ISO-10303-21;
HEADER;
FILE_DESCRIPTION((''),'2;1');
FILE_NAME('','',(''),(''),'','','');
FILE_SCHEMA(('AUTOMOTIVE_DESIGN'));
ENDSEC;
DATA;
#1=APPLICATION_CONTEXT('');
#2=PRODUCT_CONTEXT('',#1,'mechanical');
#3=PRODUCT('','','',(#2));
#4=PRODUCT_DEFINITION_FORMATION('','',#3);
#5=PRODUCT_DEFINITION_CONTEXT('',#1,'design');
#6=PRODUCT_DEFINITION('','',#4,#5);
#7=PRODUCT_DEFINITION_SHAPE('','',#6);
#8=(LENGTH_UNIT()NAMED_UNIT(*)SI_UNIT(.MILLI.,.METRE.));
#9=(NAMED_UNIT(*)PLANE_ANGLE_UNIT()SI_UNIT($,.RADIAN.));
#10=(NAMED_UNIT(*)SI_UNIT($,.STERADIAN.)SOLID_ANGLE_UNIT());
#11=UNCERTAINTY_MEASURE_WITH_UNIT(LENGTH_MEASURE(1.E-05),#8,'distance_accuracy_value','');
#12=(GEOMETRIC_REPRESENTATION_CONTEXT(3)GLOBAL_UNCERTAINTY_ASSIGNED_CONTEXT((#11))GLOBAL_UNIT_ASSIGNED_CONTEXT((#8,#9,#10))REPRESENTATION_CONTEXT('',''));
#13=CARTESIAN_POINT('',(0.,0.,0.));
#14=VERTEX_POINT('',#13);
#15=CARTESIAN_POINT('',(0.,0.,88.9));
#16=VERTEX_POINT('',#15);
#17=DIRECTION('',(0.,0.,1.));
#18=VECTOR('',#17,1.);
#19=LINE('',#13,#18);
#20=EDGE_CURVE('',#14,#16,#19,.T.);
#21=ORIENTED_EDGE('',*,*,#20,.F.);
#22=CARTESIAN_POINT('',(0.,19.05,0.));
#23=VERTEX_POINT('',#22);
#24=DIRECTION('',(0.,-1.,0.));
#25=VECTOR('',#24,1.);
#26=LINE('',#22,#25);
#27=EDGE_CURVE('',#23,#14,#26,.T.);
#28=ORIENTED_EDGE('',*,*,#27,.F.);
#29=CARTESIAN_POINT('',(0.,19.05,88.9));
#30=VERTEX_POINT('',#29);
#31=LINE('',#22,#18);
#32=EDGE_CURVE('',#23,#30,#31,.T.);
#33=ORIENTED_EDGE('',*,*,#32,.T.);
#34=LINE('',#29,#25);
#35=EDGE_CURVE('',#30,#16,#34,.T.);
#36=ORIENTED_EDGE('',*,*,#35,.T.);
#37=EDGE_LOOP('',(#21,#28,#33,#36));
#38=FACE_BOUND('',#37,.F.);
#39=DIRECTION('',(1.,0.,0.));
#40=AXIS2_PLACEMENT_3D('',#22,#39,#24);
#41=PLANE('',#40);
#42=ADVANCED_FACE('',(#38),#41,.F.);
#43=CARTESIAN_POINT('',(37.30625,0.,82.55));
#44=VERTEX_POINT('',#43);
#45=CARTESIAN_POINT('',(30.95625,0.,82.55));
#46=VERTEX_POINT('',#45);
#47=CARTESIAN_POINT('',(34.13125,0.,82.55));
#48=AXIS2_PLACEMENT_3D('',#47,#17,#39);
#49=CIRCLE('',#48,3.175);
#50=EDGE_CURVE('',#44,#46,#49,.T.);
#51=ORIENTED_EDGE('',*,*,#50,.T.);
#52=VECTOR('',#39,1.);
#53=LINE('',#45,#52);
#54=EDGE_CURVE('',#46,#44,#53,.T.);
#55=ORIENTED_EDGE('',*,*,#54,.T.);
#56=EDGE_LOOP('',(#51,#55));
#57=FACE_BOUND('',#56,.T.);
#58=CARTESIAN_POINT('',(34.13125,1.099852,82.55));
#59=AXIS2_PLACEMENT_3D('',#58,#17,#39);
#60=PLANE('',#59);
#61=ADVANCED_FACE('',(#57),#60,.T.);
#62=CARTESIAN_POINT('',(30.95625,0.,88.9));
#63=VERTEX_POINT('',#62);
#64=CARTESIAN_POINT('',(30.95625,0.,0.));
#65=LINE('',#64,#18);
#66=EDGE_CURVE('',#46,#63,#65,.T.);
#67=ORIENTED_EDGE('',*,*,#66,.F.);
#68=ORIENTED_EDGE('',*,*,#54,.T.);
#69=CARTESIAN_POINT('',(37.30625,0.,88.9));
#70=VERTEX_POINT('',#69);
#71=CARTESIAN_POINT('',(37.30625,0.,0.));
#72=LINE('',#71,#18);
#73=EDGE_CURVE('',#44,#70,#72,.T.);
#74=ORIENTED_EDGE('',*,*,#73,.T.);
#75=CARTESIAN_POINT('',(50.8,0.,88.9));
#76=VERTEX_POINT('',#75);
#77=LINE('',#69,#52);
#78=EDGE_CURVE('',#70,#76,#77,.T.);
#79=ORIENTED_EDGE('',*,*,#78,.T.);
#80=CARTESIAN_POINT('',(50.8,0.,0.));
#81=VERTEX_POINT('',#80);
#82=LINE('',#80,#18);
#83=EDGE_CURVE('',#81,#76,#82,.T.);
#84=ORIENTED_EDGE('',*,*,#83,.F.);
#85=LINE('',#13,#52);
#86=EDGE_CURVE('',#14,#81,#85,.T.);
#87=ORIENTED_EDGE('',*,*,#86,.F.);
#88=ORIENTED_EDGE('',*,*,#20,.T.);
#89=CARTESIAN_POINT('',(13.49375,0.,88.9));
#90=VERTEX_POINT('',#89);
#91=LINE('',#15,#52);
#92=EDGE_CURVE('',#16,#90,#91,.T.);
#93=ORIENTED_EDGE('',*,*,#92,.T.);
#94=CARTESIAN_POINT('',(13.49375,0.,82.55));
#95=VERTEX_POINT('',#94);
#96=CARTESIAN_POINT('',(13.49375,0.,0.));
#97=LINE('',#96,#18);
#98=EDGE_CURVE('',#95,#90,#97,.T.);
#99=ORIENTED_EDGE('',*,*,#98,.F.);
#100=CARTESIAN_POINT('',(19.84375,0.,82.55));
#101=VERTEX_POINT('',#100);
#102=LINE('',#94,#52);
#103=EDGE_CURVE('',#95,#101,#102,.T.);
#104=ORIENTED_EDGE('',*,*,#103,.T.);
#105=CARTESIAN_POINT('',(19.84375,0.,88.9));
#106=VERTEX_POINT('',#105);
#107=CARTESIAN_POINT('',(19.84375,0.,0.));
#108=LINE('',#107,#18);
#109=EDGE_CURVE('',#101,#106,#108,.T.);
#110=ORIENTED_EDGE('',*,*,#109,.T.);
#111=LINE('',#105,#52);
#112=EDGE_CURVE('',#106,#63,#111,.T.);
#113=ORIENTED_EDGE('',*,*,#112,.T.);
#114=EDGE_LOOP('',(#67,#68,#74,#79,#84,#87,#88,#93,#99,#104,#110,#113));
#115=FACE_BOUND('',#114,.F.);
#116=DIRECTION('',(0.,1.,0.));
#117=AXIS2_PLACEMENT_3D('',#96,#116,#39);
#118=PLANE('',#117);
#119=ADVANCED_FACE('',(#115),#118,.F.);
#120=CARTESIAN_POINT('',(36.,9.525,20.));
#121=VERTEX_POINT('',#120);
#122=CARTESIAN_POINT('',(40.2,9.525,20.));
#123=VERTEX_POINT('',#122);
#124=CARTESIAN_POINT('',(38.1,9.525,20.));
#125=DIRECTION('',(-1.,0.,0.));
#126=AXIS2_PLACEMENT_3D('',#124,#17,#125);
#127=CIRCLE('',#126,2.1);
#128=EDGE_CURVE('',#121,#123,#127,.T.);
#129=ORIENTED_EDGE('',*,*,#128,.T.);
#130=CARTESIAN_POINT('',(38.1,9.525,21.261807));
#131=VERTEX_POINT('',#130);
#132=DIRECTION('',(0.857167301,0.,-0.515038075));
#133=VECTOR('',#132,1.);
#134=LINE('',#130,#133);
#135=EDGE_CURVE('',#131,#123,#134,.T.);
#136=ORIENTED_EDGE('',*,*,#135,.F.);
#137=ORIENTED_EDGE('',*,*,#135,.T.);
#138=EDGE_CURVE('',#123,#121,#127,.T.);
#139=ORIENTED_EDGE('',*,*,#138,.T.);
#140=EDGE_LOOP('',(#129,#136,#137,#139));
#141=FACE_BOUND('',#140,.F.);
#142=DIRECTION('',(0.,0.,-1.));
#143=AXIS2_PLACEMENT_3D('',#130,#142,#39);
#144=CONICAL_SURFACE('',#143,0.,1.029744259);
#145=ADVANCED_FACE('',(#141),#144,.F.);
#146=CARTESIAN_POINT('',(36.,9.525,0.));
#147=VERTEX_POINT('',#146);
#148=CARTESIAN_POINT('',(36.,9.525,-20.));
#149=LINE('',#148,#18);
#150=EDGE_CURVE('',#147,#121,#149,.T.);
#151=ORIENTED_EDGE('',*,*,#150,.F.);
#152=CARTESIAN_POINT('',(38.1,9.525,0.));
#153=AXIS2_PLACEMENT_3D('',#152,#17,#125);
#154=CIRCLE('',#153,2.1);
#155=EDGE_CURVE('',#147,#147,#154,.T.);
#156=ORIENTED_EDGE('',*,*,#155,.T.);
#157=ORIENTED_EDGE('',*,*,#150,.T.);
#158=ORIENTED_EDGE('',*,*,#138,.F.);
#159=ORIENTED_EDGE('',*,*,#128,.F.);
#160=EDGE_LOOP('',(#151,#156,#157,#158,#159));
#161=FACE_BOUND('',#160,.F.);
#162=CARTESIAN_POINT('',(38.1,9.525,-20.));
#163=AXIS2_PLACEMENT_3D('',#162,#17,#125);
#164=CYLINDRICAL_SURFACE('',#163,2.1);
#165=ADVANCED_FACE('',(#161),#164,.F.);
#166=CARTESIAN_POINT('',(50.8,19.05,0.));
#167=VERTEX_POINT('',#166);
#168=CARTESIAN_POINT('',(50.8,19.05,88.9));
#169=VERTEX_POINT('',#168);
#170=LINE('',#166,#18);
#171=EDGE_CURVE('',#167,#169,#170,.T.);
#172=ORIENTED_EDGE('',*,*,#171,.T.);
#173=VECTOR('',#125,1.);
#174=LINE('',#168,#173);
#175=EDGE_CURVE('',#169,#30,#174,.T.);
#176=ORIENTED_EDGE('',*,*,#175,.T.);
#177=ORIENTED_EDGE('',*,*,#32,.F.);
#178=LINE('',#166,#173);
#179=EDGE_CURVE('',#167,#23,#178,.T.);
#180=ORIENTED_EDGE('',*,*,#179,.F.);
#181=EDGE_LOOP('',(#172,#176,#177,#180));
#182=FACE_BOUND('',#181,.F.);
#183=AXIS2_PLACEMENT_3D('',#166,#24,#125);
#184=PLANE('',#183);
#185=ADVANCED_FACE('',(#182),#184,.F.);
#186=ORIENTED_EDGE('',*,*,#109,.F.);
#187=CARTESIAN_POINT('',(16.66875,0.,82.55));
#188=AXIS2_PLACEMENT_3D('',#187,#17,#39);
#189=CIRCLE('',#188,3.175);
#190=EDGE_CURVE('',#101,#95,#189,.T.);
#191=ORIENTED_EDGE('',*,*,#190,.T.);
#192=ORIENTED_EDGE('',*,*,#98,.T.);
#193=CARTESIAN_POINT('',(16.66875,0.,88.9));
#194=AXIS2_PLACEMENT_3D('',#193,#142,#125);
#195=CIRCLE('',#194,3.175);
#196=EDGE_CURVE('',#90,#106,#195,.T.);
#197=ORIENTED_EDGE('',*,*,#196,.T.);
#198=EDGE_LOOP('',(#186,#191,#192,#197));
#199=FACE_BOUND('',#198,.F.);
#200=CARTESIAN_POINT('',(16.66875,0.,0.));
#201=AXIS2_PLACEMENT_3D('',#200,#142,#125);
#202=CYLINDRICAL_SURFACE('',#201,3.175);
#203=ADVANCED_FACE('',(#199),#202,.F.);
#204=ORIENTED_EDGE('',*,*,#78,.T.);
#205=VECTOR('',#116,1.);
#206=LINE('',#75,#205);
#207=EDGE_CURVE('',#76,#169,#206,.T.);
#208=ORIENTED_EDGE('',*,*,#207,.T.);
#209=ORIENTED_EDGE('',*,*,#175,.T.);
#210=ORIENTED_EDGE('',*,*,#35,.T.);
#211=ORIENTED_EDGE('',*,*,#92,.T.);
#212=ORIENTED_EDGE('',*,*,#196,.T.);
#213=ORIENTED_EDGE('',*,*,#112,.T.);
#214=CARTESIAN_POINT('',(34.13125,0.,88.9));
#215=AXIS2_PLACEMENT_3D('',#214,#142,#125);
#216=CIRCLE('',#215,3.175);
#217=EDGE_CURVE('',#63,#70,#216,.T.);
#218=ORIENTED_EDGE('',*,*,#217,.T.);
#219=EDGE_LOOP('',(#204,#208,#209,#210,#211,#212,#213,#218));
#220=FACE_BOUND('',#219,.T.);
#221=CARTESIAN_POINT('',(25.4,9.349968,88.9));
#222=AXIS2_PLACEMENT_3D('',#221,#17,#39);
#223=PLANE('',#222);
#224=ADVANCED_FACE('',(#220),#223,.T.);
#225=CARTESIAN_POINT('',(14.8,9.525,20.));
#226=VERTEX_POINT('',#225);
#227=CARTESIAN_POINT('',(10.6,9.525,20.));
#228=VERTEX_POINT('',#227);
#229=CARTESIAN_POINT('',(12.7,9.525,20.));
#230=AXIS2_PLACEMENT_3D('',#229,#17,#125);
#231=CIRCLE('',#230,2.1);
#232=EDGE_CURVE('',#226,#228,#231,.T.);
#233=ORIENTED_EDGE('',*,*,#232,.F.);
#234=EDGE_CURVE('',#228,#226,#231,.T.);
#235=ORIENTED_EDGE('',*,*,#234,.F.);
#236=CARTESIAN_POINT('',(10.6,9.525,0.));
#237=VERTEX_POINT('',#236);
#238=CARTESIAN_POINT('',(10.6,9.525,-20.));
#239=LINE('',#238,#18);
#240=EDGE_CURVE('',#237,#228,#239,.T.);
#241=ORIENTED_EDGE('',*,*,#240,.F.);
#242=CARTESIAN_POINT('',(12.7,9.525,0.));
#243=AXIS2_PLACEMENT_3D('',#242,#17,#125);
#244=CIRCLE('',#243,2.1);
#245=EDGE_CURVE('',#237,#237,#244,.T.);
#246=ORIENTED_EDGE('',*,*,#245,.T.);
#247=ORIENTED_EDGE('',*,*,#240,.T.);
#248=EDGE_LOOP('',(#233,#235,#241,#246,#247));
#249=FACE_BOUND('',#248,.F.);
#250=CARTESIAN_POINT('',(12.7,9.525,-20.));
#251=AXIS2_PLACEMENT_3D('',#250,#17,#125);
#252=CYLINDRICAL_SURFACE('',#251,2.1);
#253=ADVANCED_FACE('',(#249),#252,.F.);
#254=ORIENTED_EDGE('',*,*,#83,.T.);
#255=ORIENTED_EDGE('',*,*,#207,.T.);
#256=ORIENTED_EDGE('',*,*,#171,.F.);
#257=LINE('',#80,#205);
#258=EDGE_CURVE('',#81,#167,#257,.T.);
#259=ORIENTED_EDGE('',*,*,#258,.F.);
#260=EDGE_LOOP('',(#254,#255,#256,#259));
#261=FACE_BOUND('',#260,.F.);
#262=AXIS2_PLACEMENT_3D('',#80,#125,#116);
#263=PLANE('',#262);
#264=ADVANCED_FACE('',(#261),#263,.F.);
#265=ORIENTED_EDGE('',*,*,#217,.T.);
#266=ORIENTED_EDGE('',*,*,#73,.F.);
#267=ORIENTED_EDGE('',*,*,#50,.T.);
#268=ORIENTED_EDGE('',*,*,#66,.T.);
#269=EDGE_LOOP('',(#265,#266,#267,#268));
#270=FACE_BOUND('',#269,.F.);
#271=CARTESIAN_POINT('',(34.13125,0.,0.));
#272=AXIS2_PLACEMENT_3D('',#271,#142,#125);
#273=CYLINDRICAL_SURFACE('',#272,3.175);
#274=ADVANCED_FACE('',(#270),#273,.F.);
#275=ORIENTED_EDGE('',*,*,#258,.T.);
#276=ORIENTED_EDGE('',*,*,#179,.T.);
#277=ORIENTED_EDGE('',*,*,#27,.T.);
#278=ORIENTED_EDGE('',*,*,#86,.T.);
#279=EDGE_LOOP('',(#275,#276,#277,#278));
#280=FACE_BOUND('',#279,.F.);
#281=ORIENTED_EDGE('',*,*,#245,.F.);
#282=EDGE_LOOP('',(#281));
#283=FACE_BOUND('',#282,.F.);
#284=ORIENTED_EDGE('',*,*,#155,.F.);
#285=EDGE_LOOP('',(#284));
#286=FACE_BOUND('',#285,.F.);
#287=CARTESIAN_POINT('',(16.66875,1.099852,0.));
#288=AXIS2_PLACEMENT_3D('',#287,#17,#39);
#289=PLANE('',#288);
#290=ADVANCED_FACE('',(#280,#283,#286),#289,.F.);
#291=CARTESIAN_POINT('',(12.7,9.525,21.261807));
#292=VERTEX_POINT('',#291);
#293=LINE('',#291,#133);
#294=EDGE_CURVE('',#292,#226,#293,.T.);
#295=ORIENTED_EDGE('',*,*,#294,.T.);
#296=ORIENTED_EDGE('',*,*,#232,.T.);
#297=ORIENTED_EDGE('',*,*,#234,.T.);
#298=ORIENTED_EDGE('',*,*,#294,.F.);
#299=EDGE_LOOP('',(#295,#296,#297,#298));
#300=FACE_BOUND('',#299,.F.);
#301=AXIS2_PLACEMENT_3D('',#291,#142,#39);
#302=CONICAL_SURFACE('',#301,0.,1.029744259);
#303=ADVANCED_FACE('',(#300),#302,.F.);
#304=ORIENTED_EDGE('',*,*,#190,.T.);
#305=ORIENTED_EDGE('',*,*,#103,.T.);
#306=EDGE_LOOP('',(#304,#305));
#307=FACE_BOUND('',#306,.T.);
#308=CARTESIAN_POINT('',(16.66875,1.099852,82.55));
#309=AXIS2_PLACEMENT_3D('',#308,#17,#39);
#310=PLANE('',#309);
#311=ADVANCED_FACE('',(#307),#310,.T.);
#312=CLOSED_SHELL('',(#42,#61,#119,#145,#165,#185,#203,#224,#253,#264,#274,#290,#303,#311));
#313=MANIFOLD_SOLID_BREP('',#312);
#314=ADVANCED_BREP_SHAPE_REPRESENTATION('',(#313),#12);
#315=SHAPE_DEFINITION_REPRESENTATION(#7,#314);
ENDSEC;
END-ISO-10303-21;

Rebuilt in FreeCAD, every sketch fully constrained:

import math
import FreeCAD as App
import Part
import Sketcher
from FreeCAD import Vector
Q = App.Units.Quantity

doc = App.newDocument("Part")
params = doc.addObject("Spreadsheet::Sheet", "Params")
for row, (alias, value) in enumerate([
    ("sketch1_width", "2 in"),
    ("sketch1_radius", "0.125 in"),
    ("sketch1_height", "0.75 in"),
    ("sketch1_width2", "0.4375 in"),
    ("pad1_length", "3.5 in"),
    ("sketch2_radius", "0.125 in"),
    ("pad2_length", "3.25 in"),
    ("hole_diameter", "4.2 mm"),
    ("hole_depth", "20 mm"),
], start=1):
    params.set(f"A{row}", alias)
    params.set(f"B{row}", "=" + value)
    params.setAlias(f"B{row}", alias)

body = doc.addObject("PartDesign::Body", "Body")

sketch1 = doc.addObject("Sketcher::SketchObject", "Sketch")
body.addObject(sketch1)
sketch1.AttachmentSupport = (doc.XY_Plane, [""])
sketch1.MapMode = "FlatFace"
sketch1.addGeometry(Part.LineSegment(Vector(19.84375, 0, 0), Vector(30.95625, 0, 0)), False)
sketch1.addGeometry(Part.ArcOfCircle(Part.Circle(Vector(34.13125, 0, 0), Vector(0, 0, 1), 3.175), math.radians(0), math.radians(180)), False)
sketch1.addGeometry(Part.LineSegment(Vector(37.30625, 0, 0), Vector(50.8, 0, 0)), False)
sketch1.addGeometry(Part.LineSegment(Vector(50.8, 0, 0), Vector(50.8, 19.05, 0)), False)
sketch1.addGeometry(Part.LineSegment(Vector(50.8, 19.05, 0), Vector(0, 19.05, 0)), False)
sketch1.addGeometry(Part.LineSegment(Vector(0, 19.05, 0), Vector(0, 0, 0)), False)
sketch1.addGeometry(Part.LineSegment(Vector(0, 0, 0), Vector(13.49375, 0, 0)), False)
sketch1.addGeometry(Part.ArcOfCircle(Part.Circle(Vector(16.66875, 0, 0), Vector(0, 0, 1), 3.175), math.radians(0), math.radians(180)), False)
sketch1.addConstraint(Sketcher.Constraint("Coincident", 0, 2, 1, 2))
sketch1.addConstraint(Sketcher.Constraint("Coincident", 1, 1, 2, 1))
sketch1.addConstraint(Sketcher.Constraint("Coincident", 2, 2, 3, 1))
sketch1.addConstraint(Sketcher.Constraint("Coincident", 3, 2, 4, 1))
sketch1.addConstraint(Sketcher.Constraint("Coincident", 4, 2, 5, 1))
sketch1.addConstraint(Sketcher.Constraint("Coincident", 5, 2, 6, 1))
sketch1.addConstraint(Sketcher.Constraint("Coincident", 6, 2, 7, 2))
sketch1.addConstraint(Sketcher.Constraint("Coincident", 7, 1, 0, 1))
sketch1.addConstraint(Sketcher.Constraint("Horizontal", 0))
sketch1.addConstraint(Sketcher.Constraint("Horizontal", 2))
sketch1.addConstraint(Sketcher.Constraint("Vertical", 3))
sketch1.addConstraint(Sketcher.Constraint("Horizontal", 4))
sketch1.addConstraint(Sketcher.Constraint("Vertical", 5))
sketch1.addConstraint(Sketcher.Constraint("Horizontal", 6))
sketch1.addConstraint(Sketcher.Constraint("Coincident", 5, 2, -1, 1))
sketch1.addConstraint(Sketcher.Constraint("Equal", 1, 7))
sketch1.addConstraint(Sketcher.Constraint("PointOnObject", 1, 3, -1))
sketch1.addConstraint(Sketcher.Constraint("PointOnObject", 7, 3, -1))
sketch1.addConstraint(Sketcher.Constraint("PointOnObject", 0, 2, -1))
sketch1.addConstraint(Sketcher.Constraint("PointOnObject", 1, 1, -1))
sketch1.addConstraint(Sketcher.Constraint("Equal", 2, 6))
sketch1.addConstraint(Sketcher.Constraint("DistanceX", 4, 2, 4, 1, Q("2 in")))
sketch1.addConstraint(Sketcher.Constraint("Radius", 1, Q("0.125 in")))
sketch1.addConstraint(Sketcher.Constraint("DistanceY", 3, 1, 3, 2, Q("0.75 in")))
sketch1.addConstraint(Sketcher.Constraint("DistanceX", 0, 1, 0, 2, Q("0.4375 in")))
sketch1.setExpression("Constraints[21]", "Params.sketch1_width")
sketch1.setExpression("Constraints[22]", "Params.sketch1_radius")
sketch1.setExpression("Constraints[23]", "Params.sketch1_height")
sketch1.setExpression("Constraints[24]", "Params.sketch1_width2")
pad1 = doc.addObject("PartDesign::Pad", "Pad")
body.addObject(pad1)
pad1.Profile = sketch1
pad1.setExpression("Length", "Params.pad1_length")

sketch2 = doc.addObject("Sketcher::SketchObject", "Sketch001")
body.addObject(sketch2)
sketch2.AttachmentSupport = (doc.XY_Plane, [""])
sketch2.MapMode = "FlatFace"
sketch2.addGeometry(Part.ArcOfCircle(Part.Circle(Vector(16.66875, 0, 0), Vector(0, 0, 1), 3.175), math.radians(0), math.radians(180)), False)
sketch2.addGeometry(Part.LineSegment(Vector(13.49375, 0, 0), Vector(19.84375, 0, 0)), False)
sketch2.addGeometry(Part.ArcOfCircle(Part.Circle(Vector(34.13125, 0, 0), Vector(0, 0, 1), 3.175), math.radians(0), math.radians(180)), False)
sketch2.addGeometry(Part.LineSegment(Vector(30.95625, 0, 0), Vector(37.30625, 0, 0)), False)
sketch2.addConstraint(Sketcher.Constraint("Coincident", 0, 1, 1, 2))
sketch2.addConstraint(Sketcher.Constraint("Coincident", 1, 1, 0, 2))
sketch2.addConstraint(Sketcher.Constraint("Coincident", 2, 1, 3, 2))
sketch2.addConstraint(Sketcher.Constraint("Coincident", 3, 1, 2, 2))
sketch2.addConstraint(Sketcher.Constraint("Horizontal", 1))
sketch2.addConstraint(Sketcher.Constraint("Horizontal", 3))
sketch2.addConstraint(Sketcher.Constraint("Equal", 0, 2))
sketch2.addConstraint(Sketcher.Constraint("PointOnObject", 0, 3, -1))
sketch2.addConstraint(Sketcher.Constraint("PointOnObject", 2, 3, -1))
sketch2.addConstraint(Sketcher.Constraint("PointOnObject", 0, 1, -1))
sketch2.addConstraint(Sketcher.Constraint("PointOnObject", 2, 1, -1))
sketch2.addConstraint(Sketcher.Constraint("Radius", 0, Q("0.125 in")))
sketch2.addConstraint(Sketcher.Constraint("DistanceX", -1, 1, 0, 3, Q("0.65625 in")))
sketch2.addConstraint(Sketcher.Constraint("DistanceX", -1, 1, 2, 3, Q("1.34375 in")))
sketch2.setExpression("Constraints[11]", "Params.sketch2_radius")
pad2 = doc.addObject("PartDesign::Pad", "Pad001")
body.addObject(pad2)
pad2.Profile = sketch2
pad2.setExpression("Length", "Params.pad2_length")

sketch3 = doc.addObject("Sketcher::SketchObject", "Sketch002")
body.addObject(sketch3)
sketch3.AttachmentSupport = (doc.XY_Plane, [""])
sketch3.MapMode = "FlatFace"
sketch3.addGeometry(Part.Circle(Vector(12.7, 9.525, 0), Vector(0, 0, 1), 2.1), False)
sketch3.addGeometry(Part.Circle(Vector(38.1, 9.525, 0), Vector(0, 0, 1), 2.1), False)
sketch3.addConstraint(Sketcher.Constraint("Equal", 0, 1))
sketch3.addConstraint(Sketcher.Constraint("Horizontal", 0, 3, 1, 3))
sketch3.addConstraint(Sketcher.Constraint("DistanceX", 0, 3, 1, 3, Q("1 in")))
sketch3.addConstraint(Sketcher.Constraint("DistanceX", -1, 1, 0, 3, Q("0.5 in")))
sketch3.addConstraint(Sketcher.Constraint("Diameter", 0, Q("4.2 mm")))
sketch3.addConstraint(Sketcher.Constraint("DistanceY", -1, 1, 0, 3, Q("0.375 in")))
doc.recompute()
hole = doc.addObject("PartDesign::Hole", "Hole")
body.addObject(hole)
hole.Profile = sketch3
hole.ThreadType = "None"
hole.setExpression("Diameter", "Params.hole_diameter")
hole.DepthType = "Dimension"
hole.setExpression("Depth", "Params.hole_depth")
hole.DrillPoint = "Angled"
hole.DrillPointAngle = 118
hole.Reversed = True

doc.recompute()
